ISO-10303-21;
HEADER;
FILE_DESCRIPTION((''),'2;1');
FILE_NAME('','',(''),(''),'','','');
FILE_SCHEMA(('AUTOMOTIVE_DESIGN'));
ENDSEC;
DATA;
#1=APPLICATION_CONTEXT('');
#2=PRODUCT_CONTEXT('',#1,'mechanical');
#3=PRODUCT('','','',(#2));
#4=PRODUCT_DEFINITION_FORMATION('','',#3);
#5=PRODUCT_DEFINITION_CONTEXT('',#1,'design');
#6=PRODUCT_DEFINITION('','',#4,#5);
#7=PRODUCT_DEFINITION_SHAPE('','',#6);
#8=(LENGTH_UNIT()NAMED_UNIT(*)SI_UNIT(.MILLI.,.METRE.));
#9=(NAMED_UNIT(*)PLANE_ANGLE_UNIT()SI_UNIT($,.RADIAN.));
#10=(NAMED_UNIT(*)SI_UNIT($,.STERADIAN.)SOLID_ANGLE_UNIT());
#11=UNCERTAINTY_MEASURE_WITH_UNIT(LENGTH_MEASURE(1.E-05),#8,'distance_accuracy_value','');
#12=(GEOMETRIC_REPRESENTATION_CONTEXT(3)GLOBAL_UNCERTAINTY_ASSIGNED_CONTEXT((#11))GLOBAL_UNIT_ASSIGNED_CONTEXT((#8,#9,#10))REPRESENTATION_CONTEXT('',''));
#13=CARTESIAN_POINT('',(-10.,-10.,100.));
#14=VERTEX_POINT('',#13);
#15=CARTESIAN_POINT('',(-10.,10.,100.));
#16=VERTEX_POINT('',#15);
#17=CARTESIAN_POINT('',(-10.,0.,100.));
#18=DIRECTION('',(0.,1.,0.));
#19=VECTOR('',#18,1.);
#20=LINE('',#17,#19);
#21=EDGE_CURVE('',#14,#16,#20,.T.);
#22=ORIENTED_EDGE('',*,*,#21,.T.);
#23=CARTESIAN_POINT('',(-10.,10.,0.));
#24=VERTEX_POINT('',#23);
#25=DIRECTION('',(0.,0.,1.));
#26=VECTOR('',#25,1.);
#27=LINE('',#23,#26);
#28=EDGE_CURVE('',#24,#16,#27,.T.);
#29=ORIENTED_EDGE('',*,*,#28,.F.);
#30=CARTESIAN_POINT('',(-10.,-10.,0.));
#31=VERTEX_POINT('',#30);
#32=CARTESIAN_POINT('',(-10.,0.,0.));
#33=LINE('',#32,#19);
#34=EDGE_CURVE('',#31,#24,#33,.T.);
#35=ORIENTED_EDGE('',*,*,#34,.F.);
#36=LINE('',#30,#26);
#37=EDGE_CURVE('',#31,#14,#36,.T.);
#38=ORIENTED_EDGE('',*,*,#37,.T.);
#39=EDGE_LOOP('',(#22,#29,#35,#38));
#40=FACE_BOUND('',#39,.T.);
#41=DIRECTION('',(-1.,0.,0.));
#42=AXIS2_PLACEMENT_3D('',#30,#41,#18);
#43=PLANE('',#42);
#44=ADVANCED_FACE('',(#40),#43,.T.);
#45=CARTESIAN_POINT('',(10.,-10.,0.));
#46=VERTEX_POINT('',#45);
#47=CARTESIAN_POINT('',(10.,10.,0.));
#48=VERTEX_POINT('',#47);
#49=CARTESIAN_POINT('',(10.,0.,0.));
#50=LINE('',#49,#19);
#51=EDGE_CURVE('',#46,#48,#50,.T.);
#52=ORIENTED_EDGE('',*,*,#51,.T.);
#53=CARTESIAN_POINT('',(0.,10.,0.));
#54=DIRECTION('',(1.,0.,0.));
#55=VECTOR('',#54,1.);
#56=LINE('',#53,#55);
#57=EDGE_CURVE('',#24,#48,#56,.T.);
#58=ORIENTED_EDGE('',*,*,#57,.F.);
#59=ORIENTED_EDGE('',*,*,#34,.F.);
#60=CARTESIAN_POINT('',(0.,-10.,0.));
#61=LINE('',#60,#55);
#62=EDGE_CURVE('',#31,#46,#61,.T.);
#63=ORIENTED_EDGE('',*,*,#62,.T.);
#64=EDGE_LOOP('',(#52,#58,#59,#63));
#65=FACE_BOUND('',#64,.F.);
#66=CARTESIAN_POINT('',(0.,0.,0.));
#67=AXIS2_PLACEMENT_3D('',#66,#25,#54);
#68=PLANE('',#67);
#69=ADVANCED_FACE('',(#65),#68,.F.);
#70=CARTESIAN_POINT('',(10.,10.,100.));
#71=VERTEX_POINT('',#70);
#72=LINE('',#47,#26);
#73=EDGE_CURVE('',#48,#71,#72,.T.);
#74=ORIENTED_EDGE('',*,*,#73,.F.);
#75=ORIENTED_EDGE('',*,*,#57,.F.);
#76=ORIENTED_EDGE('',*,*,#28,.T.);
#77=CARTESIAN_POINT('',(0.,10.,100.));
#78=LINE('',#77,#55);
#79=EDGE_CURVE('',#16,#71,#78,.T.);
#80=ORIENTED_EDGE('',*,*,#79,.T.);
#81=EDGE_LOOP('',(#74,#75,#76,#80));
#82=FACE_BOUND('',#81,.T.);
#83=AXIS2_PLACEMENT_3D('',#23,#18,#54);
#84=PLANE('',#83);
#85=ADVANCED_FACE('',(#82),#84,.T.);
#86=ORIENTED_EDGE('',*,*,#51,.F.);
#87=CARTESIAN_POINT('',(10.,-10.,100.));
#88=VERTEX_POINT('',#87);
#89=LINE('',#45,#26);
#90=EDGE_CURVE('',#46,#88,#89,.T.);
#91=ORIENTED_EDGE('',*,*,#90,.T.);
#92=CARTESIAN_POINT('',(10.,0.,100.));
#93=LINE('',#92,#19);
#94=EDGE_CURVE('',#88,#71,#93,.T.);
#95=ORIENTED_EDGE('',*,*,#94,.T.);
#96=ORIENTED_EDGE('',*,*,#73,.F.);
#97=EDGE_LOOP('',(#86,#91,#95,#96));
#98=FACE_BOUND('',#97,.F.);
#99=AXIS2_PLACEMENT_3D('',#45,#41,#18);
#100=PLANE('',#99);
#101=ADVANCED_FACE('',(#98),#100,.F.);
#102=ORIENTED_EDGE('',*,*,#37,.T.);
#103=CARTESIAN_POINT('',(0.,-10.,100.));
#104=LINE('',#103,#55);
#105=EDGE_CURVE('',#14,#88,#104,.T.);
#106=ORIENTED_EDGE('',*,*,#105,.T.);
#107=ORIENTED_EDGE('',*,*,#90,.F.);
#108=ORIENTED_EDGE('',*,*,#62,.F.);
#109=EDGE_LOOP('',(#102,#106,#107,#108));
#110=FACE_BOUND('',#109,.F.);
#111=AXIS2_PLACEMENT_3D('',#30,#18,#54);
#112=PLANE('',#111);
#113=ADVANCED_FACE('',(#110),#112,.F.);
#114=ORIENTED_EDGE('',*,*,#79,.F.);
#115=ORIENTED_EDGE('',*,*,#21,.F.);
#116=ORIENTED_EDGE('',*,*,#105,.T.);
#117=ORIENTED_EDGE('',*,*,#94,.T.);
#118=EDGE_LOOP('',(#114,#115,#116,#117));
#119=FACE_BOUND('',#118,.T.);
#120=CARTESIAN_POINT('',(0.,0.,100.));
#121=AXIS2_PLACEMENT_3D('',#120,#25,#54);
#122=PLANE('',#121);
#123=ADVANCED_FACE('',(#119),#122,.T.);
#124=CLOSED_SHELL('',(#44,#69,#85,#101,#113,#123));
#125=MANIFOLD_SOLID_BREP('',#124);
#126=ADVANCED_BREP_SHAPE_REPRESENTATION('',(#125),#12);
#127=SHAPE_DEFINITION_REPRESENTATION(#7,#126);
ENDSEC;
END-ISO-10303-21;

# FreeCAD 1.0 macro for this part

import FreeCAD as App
import Part
import Sketcher


def add_polygon(sketch, points):
    """Adds a closed chain of lines whose ends are joined by coincident constraints."""
    first, n = sketch.GeometryCount, len(points)
    for a, b in zip(points, points[1:] + points[:1]):
        sketch.addGeometry(Part.LineSegment(App.Vector(*a, 0), App.Vector(*b, 0)), False)
    for i in range(n):
        sketch.addConstraint(Sketcher.Constraint("Coincident", first + i, 2, first + (i + 1) % n, 1))

doc = App.newDocument("Part")
body = doc.addObject("PartDesign::Body", "Body")

# Sketch on XY plane
sketch1 = body.newObject("Sketcher::SketchObject", "Sketch")
sketch1.AttachmentSupport = (doc.getObject("XY_Plane"), [""])
sketch1.MapMode = "FlatFace"
add_polygon(sketch1, [(-10, 10), (-10, -10), (10, -10), (10, 10)])  # lines 0-3
sketch1.addConstraint([
    Sketcher.Constraint("Vertical", 0),
    Sketcher.Constraint("Horizontal", 1),
    Sketcher.Constraint("Vertical", 2),
    Sketcher.Constraint("Horizontal", 3),
    Sketcher.Constraint("Symmetric", 0, 2, 2, 2, -1, 1),
    Sketcher.Constraint("Equal", 3, 0),
    Sketcher.Constraint("DistanceX", 1, 1, 1, 2, 20.0),
])
pad1 = body.newObject("PartDesign::Pad", "Pad")
pad1.Profile = sketch1
pad1.Length = 100

doc.recompute()
